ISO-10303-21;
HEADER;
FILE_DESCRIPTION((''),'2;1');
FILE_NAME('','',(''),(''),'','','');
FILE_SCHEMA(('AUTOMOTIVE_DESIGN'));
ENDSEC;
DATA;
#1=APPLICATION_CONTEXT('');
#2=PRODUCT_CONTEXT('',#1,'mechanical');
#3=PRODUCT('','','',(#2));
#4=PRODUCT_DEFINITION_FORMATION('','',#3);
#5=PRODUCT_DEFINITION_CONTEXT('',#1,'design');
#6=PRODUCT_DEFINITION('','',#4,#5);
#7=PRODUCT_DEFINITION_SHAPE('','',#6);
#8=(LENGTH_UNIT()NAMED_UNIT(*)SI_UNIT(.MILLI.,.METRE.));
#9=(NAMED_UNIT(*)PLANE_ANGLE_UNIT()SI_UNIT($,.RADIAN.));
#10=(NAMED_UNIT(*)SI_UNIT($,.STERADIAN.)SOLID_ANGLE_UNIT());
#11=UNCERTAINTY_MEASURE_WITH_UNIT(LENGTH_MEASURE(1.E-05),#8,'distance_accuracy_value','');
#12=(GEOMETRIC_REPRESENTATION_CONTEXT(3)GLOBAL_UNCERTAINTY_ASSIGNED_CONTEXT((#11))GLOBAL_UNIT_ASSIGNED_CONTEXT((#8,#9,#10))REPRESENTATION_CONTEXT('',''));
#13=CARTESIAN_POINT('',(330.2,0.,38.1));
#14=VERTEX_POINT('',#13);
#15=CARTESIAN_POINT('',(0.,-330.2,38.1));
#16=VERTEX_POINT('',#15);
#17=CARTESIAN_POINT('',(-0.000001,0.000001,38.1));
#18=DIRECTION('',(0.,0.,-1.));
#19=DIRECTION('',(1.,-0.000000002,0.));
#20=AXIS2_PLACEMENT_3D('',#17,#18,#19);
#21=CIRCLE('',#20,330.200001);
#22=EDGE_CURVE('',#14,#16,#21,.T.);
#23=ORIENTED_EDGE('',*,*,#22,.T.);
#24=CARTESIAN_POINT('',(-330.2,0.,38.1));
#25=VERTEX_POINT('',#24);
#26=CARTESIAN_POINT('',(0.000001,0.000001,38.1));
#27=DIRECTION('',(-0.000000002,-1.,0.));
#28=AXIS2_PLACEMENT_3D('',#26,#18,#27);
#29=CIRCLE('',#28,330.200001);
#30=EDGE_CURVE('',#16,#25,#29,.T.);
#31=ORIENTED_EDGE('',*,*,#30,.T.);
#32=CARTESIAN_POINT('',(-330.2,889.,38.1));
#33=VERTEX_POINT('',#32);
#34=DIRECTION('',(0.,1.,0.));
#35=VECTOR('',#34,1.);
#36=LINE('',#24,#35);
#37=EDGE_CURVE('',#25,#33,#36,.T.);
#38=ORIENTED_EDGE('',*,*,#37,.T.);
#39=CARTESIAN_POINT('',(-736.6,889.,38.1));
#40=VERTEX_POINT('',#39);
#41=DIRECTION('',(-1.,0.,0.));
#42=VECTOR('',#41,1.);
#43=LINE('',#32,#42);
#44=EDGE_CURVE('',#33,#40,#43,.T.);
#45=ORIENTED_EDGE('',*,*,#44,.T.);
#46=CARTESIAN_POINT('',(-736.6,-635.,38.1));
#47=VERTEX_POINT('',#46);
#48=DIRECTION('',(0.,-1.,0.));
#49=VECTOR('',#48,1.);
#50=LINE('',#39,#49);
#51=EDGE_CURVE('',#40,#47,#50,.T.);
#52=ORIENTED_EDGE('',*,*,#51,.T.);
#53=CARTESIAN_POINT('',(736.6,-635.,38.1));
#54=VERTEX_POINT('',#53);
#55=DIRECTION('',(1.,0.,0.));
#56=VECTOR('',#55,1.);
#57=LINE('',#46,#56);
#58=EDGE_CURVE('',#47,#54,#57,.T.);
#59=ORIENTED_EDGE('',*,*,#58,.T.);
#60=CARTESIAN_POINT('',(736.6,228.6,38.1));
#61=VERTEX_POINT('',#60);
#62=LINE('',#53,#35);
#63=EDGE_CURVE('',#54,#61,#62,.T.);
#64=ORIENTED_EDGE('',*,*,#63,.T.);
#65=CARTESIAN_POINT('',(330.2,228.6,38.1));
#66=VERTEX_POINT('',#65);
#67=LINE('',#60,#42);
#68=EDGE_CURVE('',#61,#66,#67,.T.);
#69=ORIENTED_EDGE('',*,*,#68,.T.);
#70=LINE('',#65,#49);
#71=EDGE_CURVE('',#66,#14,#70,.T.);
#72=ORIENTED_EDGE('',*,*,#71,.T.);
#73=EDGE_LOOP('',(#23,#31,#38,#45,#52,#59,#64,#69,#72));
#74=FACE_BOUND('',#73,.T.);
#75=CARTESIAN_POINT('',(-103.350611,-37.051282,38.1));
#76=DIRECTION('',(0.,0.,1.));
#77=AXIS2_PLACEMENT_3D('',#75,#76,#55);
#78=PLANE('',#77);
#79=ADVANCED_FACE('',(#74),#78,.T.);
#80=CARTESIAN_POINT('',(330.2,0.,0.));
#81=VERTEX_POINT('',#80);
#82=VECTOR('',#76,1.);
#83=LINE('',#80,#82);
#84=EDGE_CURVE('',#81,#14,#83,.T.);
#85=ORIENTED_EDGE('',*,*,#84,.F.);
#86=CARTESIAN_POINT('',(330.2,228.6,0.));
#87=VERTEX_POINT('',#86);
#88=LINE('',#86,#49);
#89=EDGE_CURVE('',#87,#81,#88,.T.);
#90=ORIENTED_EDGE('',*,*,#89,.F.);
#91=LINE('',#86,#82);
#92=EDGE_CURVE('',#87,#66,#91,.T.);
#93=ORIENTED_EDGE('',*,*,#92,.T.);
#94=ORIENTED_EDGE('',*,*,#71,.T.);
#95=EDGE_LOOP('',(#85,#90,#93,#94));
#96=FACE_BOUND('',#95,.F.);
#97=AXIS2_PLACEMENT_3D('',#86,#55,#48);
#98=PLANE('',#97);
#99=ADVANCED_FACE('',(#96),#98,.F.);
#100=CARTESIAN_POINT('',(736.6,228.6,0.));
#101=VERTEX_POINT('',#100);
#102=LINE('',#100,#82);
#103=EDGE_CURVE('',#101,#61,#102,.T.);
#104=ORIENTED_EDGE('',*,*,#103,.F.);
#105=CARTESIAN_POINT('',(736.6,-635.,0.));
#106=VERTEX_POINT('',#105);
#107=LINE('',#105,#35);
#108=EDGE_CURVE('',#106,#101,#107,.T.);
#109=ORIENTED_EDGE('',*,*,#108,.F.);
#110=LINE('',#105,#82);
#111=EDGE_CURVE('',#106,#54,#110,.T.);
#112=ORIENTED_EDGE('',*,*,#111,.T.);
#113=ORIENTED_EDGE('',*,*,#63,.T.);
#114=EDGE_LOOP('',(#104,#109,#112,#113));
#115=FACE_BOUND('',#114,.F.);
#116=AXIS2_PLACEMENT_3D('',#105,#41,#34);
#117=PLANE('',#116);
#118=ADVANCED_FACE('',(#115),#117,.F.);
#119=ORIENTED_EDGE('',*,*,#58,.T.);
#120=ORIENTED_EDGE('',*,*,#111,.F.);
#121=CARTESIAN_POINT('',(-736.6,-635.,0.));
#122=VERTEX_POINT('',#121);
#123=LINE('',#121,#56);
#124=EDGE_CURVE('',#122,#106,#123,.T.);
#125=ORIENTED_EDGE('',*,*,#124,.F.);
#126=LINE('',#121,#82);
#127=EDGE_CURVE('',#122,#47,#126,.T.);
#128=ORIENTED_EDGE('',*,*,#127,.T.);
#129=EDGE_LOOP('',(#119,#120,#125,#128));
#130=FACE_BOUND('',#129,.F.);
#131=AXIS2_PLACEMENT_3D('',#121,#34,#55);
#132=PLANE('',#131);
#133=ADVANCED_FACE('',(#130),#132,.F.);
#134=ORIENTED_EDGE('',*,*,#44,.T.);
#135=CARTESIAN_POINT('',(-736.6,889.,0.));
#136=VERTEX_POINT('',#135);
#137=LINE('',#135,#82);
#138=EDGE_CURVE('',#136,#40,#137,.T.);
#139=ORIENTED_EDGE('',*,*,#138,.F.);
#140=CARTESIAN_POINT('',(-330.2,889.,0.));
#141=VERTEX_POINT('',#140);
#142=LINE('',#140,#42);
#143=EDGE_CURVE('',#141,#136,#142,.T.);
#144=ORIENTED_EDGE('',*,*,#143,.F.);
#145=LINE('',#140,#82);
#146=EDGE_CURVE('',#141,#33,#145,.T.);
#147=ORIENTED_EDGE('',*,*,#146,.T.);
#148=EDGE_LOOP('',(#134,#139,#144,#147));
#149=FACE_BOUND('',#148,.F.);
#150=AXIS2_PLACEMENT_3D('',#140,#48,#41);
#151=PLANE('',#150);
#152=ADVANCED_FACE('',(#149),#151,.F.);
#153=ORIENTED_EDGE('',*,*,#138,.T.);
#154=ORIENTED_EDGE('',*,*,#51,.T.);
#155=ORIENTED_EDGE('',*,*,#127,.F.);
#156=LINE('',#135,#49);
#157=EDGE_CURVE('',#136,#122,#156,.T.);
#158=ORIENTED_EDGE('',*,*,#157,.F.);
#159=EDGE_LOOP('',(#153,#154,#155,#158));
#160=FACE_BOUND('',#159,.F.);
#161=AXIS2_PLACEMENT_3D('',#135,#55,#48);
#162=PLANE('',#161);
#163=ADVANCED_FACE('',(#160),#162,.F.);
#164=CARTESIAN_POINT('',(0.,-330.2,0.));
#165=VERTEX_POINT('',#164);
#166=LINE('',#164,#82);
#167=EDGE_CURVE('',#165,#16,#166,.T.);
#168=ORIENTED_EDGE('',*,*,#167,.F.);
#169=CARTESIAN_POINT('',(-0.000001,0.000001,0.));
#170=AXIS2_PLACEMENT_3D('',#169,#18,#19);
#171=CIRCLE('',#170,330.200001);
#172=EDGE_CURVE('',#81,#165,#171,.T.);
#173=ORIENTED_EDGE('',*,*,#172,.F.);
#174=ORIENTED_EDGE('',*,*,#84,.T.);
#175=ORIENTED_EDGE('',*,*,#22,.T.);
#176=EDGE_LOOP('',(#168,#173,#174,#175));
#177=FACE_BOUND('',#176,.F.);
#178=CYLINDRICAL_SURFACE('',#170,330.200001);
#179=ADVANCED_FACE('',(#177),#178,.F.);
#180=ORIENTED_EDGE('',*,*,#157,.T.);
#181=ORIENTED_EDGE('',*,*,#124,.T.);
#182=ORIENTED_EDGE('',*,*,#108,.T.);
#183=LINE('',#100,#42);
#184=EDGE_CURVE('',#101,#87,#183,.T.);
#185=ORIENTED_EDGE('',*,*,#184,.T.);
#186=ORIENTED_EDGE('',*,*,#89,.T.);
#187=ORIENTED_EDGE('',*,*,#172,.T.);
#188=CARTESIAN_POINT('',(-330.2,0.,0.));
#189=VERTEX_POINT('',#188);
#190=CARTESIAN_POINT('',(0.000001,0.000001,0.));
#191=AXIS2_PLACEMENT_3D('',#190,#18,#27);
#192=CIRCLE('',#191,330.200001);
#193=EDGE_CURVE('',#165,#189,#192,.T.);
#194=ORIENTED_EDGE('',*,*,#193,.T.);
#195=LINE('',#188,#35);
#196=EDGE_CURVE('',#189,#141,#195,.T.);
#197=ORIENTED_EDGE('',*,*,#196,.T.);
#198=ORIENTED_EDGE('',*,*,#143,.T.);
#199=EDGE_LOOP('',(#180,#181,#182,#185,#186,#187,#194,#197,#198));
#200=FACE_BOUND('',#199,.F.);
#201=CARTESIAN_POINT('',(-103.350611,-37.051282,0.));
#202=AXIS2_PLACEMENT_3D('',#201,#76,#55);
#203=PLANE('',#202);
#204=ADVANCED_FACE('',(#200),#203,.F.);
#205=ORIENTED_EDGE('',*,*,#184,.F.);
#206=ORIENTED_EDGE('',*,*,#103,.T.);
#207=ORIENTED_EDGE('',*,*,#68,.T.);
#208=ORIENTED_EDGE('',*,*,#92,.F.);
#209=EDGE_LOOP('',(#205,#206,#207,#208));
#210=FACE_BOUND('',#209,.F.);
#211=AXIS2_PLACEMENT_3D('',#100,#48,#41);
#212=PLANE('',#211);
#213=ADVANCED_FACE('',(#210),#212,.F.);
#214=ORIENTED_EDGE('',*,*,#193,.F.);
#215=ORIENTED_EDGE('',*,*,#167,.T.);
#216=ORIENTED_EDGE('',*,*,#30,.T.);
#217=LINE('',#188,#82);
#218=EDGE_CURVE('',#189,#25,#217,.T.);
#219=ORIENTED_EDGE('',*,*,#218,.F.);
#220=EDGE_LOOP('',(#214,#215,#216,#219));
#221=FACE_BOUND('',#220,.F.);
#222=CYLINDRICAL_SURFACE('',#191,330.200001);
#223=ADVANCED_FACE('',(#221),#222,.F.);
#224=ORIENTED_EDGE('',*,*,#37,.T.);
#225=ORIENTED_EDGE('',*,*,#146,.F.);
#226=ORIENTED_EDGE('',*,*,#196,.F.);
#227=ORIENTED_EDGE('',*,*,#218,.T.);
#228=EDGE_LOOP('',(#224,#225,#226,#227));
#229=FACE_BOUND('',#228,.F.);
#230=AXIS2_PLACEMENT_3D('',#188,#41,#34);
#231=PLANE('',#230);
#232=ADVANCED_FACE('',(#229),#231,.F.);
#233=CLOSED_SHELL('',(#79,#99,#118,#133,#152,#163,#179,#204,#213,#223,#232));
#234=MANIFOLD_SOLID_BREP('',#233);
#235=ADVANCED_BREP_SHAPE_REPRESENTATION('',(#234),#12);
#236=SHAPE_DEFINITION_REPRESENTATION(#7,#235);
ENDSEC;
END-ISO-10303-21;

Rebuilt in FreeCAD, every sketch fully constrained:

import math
import FreeCAD as App
import Part
import Sketcher
from FreeCAD import Vector
Q = App.Units.Quantity

doc = App.newDocument("Part")
params = doc.addObject("Spreadsheet::Sheet", "Params")
for row, (alias, value) in enumerate([
    ("sketch1_radius", "13 in"),
    ("sketch1_width", "16 in"),
    ("sketch1_height", "35 in"),
    ("sketch1_height2", "60 in"),
    ("sketch1_height3", "34 in"),
    ("pad1_length", "1.5 in"),
], start=1):
    params.set(f"A{row}", alias)
    params.set(f"B{row}", "=" + value)
    params.setAlias(f"B{row}", alias)

body = doc.addObject("PartDesign::Body", "Body")

sketch1 = body.newObject("Sketcher::SketchObject", "Sketch")
sketch1.AttachmentSupport = (doc.getObject("XY_Plane"), [""])
sketch1.MapMode = "FlatFace"
sketch1.addGeometry(Part.ArcOfCircle(Part.Circle(Vector(0, 0, 0), Vector(0, 0, 1), 330), math.radians(-180), math.radians(-90)), False)
sketch1.addGeometry(Part.LineSegment(Vector(-330, 0, 0), Vector(-330, 889, 0)), False)
sketch1.addGeometry(Part.LineSegment(Vector(-330, 889, 0), Vector(-737, 889, 0)), False)
sketch1.addGeometry(Part.LineSegment(Vector(-737, 889, 0), Vector(-737, -635, 0)), False)
sketch1.addGeometry(Part.LineSegment(Vector(-737, -635, 0), Vector(737, -635, 0)), False)
sketch1.addGeometry(Part.LineSegment(Vector(737, -635, 0), Vector(737, 229, 0)), False)
sketch1.addGeometry(Part.LineSegment(Vector(737, 229, 0), Vector(330, 229, 0)), False)
sketch1.addGeometry(Part.LineSegment(Vector(330, 229, 0), Vector(330, 0, 0)), False)
sketch1.addGeometry(Part.ArcOfCircle(Part.Circle(Vector(0, 0, 0), Vector(0, 0, 1), 330), math.radians(-90), math.radians(0)), False)
sketch1.addConstraint(Sketcher.Constraint("Tangent", 0, 1, 1, 1))
sketch1.addConstraint(Sketcher.Constraint("Coincident", 1, 2, 2, 1))
sketch1.addConstraint(Sketcher.Constraint("Coincident", 2, 2, 3, 1))
sketch1.addConstraint(Sketcher.Constraint("Coincident", 3, 2, 4, 1))
sketch1.addConstraint(Sketcher.Constraint("Coincident", 4, 2, 5, 1))
sketch1.addConstraint(Sketcher.Constraint("Coincident", 5, 2, 6, 1))
sketch1.addConstraint(Sketcher.Constraint("Coincident", 6, 2, 7, 1))
sketch1.addConstraint(Sketcher.Constraint("Tangent", 7, 2, 8, 2))
sketch1.addConstraint(Sketcher.Constraint("Tangent", 8, 1, 0, 2))
sketch1.addConstraint(Sketcher.Constraint("Vertical", 1))
sketch1.addConstraint(Sketcher.Constraint("Horizontal", 2))
sketch1.addConstraint(Sketcher.Constraint("Vertical", 3))
sketch1.addConstraint(Sketcher.Constraint("Horizontal", 4))
sketch1.addConstraint(Sketcher.Constraint("Vertical", 5))
sketch1.addConstraint(Sketcher.Constraint("Horizontal", 6))
sketch1.addConstraint(Sketcher.Constraint("Vertical", 7))
sketch1.addConstraint(Sketcher.Constraint("Coincident", 0, 3, -1, 1))
sketch1.addConstraint(Sketcher.Constraint("Equal", 0, 8))
sketch1.addConstraint(Sketcher.Constraint("PointOnObject", 8, 1, -2))
sketch1.addConstraint(Sketcher.Constraint("Equal", 2, 6))
sketch1.addConstraint(Sketcher.Constraint("Radius", 0, Q("13 in")))
sketch1.addConstraint(Sketcher.Constraint("DistanceX", 2, 2, 2, 1, Q("16 in")))
sketch1.addConstraint(Sketcher.Constraint("DistanceY", 1, 1, 1, 2, Q("35 in")))
sketch1.addConstraint(Sketcher.Constraint("DistanceY", 3, 2, 3, 1, Q("60 in")))
sketch1.addConstraint(Sketcher.Constraint("DistanceY", 5, 1, 5, 2, Q("34 in")))
sketch1.setExpression("Constraints[20]", "Params.sketch1_radius")
sketch1.setExpression("Constraints[21]", "Params.sketch1_width")
sketch1.setExpression("Constraints[22]", "Params.sketch1_height")
sketch1.setExpression("Constraints[23]", "Params.sketch1_height2")
sketch1.setExpression("Constraints[24]", "Params.sketch1_height3")
pad1 = body.newObject("PartDesign::Pad", "Pad")
pad1.Profile = sketch1
pad1.setExpression("Length", "Params.pad1_length")

doc.recompute()
